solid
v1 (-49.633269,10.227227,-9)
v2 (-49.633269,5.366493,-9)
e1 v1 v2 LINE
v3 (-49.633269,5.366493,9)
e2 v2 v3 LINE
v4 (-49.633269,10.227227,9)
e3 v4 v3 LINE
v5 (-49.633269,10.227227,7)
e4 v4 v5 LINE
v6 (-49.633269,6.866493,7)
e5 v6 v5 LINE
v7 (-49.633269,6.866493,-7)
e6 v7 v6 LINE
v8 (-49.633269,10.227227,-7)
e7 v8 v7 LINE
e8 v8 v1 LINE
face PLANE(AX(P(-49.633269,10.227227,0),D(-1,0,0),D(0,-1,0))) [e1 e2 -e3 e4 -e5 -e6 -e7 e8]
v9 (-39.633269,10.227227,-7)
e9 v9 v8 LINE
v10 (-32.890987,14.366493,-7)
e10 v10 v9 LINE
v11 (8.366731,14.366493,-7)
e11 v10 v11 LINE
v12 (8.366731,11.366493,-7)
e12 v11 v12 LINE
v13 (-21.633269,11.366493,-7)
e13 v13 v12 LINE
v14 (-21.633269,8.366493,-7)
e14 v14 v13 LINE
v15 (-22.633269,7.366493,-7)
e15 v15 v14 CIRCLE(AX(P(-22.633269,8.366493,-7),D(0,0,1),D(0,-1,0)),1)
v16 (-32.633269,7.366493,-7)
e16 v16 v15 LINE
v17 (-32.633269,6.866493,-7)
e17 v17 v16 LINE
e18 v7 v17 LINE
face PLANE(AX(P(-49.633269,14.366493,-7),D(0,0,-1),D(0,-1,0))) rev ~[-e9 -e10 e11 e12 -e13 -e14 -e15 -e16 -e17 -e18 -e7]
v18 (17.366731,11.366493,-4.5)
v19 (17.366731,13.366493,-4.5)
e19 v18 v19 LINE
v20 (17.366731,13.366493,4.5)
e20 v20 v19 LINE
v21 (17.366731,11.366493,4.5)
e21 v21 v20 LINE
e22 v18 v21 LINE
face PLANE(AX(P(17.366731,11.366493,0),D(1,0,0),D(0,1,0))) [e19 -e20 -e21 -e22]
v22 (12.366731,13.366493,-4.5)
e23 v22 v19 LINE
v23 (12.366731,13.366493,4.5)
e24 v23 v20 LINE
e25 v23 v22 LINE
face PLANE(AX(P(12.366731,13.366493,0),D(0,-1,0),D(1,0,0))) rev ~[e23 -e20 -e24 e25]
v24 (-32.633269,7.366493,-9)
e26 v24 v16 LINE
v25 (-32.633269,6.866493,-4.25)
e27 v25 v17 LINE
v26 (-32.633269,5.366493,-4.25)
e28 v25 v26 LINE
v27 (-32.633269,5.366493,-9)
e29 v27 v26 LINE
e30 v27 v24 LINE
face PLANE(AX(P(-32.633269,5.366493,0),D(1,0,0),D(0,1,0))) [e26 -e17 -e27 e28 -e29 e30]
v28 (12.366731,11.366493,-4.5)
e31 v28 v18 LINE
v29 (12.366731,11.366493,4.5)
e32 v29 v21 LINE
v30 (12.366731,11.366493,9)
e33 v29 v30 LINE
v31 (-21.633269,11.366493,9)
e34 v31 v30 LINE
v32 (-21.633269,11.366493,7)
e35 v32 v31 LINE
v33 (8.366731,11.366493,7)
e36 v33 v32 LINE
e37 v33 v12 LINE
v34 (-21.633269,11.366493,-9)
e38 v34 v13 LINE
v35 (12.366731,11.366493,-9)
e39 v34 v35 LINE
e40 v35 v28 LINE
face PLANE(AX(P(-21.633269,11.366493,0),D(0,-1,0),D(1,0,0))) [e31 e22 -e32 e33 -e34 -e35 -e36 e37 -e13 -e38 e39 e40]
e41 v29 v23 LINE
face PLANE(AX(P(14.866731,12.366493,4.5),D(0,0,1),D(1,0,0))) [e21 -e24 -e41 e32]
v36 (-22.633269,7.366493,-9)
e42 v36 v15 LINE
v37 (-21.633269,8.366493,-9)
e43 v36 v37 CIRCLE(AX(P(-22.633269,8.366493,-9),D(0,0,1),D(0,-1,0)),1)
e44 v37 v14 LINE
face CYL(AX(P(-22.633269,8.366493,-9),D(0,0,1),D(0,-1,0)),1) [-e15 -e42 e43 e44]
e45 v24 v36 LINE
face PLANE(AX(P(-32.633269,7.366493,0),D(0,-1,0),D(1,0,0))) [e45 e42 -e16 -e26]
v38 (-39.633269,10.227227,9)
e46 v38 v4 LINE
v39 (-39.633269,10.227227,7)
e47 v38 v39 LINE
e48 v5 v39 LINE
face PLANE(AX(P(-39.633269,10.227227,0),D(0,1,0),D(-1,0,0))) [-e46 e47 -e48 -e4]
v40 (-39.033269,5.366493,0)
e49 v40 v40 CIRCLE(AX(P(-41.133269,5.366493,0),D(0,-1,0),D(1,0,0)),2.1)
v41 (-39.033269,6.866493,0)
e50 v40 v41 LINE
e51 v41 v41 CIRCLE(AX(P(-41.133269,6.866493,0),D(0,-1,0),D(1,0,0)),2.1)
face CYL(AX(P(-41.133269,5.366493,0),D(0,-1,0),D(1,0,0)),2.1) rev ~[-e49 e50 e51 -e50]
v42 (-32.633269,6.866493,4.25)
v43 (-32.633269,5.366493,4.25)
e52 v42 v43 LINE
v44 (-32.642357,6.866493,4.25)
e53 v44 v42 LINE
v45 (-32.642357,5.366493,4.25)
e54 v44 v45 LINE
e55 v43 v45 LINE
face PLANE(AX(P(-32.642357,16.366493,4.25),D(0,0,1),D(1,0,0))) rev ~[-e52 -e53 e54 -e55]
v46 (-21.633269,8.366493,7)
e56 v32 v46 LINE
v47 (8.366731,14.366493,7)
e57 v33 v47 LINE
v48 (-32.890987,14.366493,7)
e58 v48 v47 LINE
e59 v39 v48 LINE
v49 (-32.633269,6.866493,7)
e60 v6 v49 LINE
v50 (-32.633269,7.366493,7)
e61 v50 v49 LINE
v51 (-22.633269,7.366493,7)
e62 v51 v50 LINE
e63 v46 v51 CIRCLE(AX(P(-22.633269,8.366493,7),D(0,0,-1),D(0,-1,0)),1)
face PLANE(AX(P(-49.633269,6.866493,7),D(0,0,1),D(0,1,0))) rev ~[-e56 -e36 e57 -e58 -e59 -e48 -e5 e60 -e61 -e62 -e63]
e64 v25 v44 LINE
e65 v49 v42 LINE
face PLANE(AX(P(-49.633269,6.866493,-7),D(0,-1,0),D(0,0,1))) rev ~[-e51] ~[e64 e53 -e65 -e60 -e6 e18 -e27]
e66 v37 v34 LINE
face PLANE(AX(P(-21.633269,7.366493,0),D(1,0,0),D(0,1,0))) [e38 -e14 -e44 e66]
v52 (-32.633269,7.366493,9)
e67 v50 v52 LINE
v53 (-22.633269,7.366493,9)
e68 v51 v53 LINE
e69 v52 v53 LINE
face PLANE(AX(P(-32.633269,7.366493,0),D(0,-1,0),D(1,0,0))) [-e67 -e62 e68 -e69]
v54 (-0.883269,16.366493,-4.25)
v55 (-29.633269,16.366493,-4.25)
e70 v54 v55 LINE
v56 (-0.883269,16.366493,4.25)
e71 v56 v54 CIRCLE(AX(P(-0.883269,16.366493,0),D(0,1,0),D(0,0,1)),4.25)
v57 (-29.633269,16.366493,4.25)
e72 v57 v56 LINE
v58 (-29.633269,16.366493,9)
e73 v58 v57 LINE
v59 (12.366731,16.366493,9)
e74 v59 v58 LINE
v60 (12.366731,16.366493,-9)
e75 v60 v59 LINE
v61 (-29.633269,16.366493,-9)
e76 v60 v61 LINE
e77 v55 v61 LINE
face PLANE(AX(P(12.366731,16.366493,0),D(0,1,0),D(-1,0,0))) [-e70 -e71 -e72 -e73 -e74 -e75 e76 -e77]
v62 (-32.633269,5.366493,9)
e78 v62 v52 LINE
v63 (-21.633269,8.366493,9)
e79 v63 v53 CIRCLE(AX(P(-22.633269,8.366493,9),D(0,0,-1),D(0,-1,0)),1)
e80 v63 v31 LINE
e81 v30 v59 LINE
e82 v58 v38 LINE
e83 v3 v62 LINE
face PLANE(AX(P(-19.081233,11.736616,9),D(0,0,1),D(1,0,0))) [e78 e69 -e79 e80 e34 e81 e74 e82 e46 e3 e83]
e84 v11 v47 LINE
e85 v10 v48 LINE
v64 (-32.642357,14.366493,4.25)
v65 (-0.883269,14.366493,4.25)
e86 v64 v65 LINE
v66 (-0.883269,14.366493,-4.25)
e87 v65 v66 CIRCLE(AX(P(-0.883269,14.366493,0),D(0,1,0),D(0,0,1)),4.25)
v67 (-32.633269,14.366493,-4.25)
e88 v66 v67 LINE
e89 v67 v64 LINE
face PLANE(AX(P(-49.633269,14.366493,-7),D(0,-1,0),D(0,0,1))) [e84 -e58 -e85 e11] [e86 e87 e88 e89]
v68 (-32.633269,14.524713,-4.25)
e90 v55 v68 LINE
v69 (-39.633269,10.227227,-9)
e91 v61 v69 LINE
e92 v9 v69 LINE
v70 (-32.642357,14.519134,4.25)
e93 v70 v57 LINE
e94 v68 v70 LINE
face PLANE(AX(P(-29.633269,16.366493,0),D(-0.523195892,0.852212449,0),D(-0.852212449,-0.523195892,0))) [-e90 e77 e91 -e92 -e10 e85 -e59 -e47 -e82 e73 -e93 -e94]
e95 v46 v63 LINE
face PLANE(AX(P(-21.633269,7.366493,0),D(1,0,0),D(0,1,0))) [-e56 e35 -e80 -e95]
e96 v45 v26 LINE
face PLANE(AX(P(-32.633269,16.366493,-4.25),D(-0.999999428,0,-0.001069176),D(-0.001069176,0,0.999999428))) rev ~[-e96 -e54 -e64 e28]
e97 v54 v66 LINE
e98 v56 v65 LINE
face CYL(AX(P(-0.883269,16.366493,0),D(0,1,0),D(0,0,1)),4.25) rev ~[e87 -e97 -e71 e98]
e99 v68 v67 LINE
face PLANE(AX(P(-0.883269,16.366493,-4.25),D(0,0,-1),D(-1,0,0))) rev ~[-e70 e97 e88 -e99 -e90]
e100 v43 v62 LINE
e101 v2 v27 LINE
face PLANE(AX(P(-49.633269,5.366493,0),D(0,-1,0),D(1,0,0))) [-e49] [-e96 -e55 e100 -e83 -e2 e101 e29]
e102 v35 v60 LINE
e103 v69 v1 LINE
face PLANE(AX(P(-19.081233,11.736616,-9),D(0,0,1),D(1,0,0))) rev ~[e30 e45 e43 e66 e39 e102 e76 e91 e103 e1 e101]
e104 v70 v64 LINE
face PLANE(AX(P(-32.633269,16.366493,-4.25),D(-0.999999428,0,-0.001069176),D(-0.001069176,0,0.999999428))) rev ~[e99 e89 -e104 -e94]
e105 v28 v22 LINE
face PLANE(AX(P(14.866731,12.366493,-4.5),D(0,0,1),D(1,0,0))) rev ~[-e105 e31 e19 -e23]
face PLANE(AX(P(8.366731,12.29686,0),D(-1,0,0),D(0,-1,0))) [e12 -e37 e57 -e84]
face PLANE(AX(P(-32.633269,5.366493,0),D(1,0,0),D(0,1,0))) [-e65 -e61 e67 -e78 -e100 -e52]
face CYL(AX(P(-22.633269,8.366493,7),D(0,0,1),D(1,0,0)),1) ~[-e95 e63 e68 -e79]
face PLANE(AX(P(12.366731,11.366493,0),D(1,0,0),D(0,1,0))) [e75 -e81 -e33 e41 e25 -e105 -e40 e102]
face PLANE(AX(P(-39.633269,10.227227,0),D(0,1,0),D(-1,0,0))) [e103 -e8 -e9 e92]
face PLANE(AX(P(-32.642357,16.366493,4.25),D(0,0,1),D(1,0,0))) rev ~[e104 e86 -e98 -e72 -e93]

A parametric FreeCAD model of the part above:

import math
import FreeCAD as App
import Part
import Sketcher
from FreeCAD import Vector
Q = App.Units.Quantity


def edges_at(feature, points):
    """Names of the edges that pass closest to the given points."""
    edges = feature.Shape.Edges
    near = lambda p: min(range(len(edges)), key=lambda i: edges[i].distToShape(Part.Vertex(*p))[0])
    return sorted({f"Edge{near(p) + 1}" for p in points})


def add_polygon(sketch, points):
    """Adds a closed chain of lines whose ends are joined by coincident constraints."""
    first, n = sketch.GeometryCount, len(points)
    for a, b in zip(points, points[1:] + points[:1]):
        sketch.addGeometry(Part.LineSegment(App.Vector(*a, 0), App.Vector(*b, 0)), False)
    for i in range(n):
        sketch.addConstraint(Sketcher.Constraint("Coincident", first + i, 2, first + (i + 1) % n, 1))

doc = App.newDocument("Part")
body = doc.addObject("PartDesign::Body", "Body")

sketch1 = body.newObject("Sketcher::SketchObject", "Sketch")
sketch1.AttachmentSupport = (doc.getObject("XY_Plane"), [""])
sketch1.MapMode = "FlatFace"
add_polygon(sketch1, [(-49.633269, 10.227227), (-49.633269, 5.366493), (-32.633269, 5.366493), (-32.633269, 7.366493), (-21.633269, 7.366493), (-21.633269, 11.366493), (12.366731, 11.366493), (12.366731, 16.366493), (-29.633269, 16.366493), (-39.633269, 10.227227)])
sketch1.addConstraint([
    Sketcher.Constraint("Vertical", 0),
    Sketcher.Constraint("Horizontal", 1),
    Sketcher.Constraint("Vertical", 2),
    Sketcher.Constraint("Horizontal", 3),
    Sketcher.Constraint("Vertical", 4),
    Sketcher.Constraint("Horizontal", 5),
    Sketcher.Constraint("Vertical", 6),
    Sketcher.Constraint("Horizontal", 7),
    Sketcher.Constraint("Horizontal", 9),
    Sketcher.Constraint("DistanceX", 1, 1, 1, 2, Q("17 mm")),
    Sketcher.Constraint("DistanceX", 3, 1, 3, 2, Q("11 mm")),
    Sketcher.Constraint("DistanceX", 5, 1, 5, 2, Q("34 mm")),
    Sketcher.Constraint("DistanceX", 7, 2, 7, 1, Q("42 mm")),
    Sketcher.Constraint("DistanceX", 9, 2, 9, 1, Q("10 mm")),
    Sketcher.Constraint("DistanceY", 2, 1, 2, 2, Q("2 mm")),
    Sketcher.Constraint("DistanceY", 4, 1, 4, 2, Q("4 mm")),
    Sketcher.Constraint("DistanceY", 6, 1, 6, 2, Q("5 mm")),
    Sketcher.Constraint("DistanceY", 0, 2, 0, 1, Q("4.860734 mm")),
    Sketcher.Constraint("DistanceX", 0, 2, -1, 1, Q("49.633269 mm")),
    Sketcher.Constraint("DistanceY", -1, 1, 0, 2, Q("5.366493 mm")),
])
pad1 = body.newObject("PartDesign::Pad", "Pad")
pad1.Profile = sketch1
pad1.Length = 18
pad1.Midplane = True

sketch2 = body.newObject("Sketcher::SketchObject", "Sketch001")
sketch2.AttachmentSupport = (doc.getObject("XY_Plane"), [""])
sketch2.MapMode = "FlatFace"
add_polygon(sketch2, [(12.366731, 13.366493), (12.366731, 11.366493), (17.366731, 11.366493), (17.366731, 13.366493)])
sketch2.addConstraint([
    Sketcher.Constraint("Vertical", 0),
    Sketcher.Constraint("Horizontal", 1),
    Sketcher.Constraint("Vertical", 2),
    Sketcher.Constraint("Horizontal", 3),
    Sketcher.Constraint("DistanceX", 1, 1, 1, 2, Q("5 mm")),
    Sketcher.Constraint("DistanceY", 0, 2, 0, 1, Q("2 mm")),
    Sketcher.Constraint("DistanceX", -1, 1, 0, 2, Q("12.366731 mm")),
    Sketcher.Constraint("DistanceY", -1, 1, 0, 2, Q("11.366493 mm")),
])
pad2 = body.newObject("PartDesign::Pad", "Pad001")
pad2.Profile = sketch2
pad2.Length = 9
pad2.Midplane = True

sketch3 = body.newObject("Sketcher::SketchObject", "Sketch002")
sketch3.AttachmentSupport = (doc.getObject("XZ_Plane"), [""])
sketch3.MapMode = "FlatFace"
sketch3.AttachmentOffset = App.Placement(Vector(0, 0, -5.366493), App.Rotation())
sketch3.addGeometry(Part.Circle(Vector(-41.133269, 0, 0), Vector(0, 0, 1), 2.1), False)
sketch3.addConstraint([
    Sketcher.Constraint("PointOnObject", 0, 3, -1),
    Sketcher.Constraint("Diameter", 0, Q("4.2 mm")),
    Sketcher.Constraint("DistanceX", 0, 3, -1, 1, Q("41.133269 mm")),
])
pocket1 = body.newObject("PartDesign::Pocket", "Pocket")
pocket1.Profile = sketch3
pocket1.Type = "ThroughAll"

sketch4 = body.newObject("Sketcher::SketchObject", "Sketch003")
sketch4.AttachmentSupport = (doc.getObject("XZ_Plane"), [""])
sketch4.MapMode = "FlatFace"
sketch4.AttachmentOffset = App.Placement(Vector(0, 0, -16.366493), App.Rotation())
sketch4.addGeometry([
    Part.ArcOfCircle(Part.Circle(Vector(-0.883269, 0, 0), Vector(0, 0, 1), 4.25), math.radians(-90), math.radians(90)),
    Part.LineSegment(Vector(-0.883269, -4.25, 0), Vector(-32.633269, -4.25, 0)),
    Part.LineSegment(Vector(-32.633269, -4.25, 0), Vector(-32.642357, 4.25, 0)),
    Part.LineSegment(Vector(-32.642357, 4.25, 0), Vector(-0.883269, 4.25, 0)),
], False)
sketch4.addConstraint([
    Sketcher.Constraint("Tangent", 0, 1, 1, 1),
    Sketcher.Constraint("Coincident", 1, 2, 2, 1),
    Sketcher.Constraint("Coincident", 2, 2, 3, 1),
    Sketcher.Constraint("Tangent", 3, 2, 0, 2),
    Sketcher.Constraint("Horizontal", 1),
    Sketcher.Constraint("Horizontal", 3),
    Sketcher.Constraint("PointOnObject", 0, 3, -1),
    Sketcher.Constraint("Radius", 0, Q("4.25 mm")),
    Sketcher.Constraint("DistanceX", 1, 2, 1, 1, Q("31.75 mm")),
    Sketcher.Constraint("DistanceX", 3, 1, 3, 2, Q("31.759088 mm")),
    Sketcher.Constraint("DistanceX", 0, 3, -1, 1, Q("0.883269 mm")),
])
pocket2 = body.newObject("PartDesign::Pocket", "Pocket001")
pocket2.Profile = sketch4
pocket2.Type = "ThroughAll"
pocket2.Reversed = True

sketch5 = body.newObject("Sketcher::SketchObject", "Sketch004")
sketch5.AttachmentSupport = (doc.getObject("YZ_Plane"), [""])
sketch5.MapMode = "FlatFace"
sketch5.AttachmentOffset = App.Placement(Vector(0, 0, -49.633269), App.Rotation())
add_polygon(sketch5, [(14.366493, 7), (14.366493, -7), (6.866493, -7), (6.866493, 7)])
sketch5.addConstraint([
    Sketcher.Constraint("Vertical", 0),
    Sketcher.Constraint("Horizontal", 1),
    Sketcher.Constraint("Vertical", 2),
    Sketcher.Constraint("Horizontal", 3),
    Sketcher.Constraint("DistanceY", 0, 2, 0, 1, Q("14 mm")),
    Sketcher.Constraint("DistanceX", 1, 2, 1, 1, Q("7.5 mm")),
    Sketcher.Constraint("DistanceY", 0, 2, -1, 1, Q("7 mm")),
    Sketcher.Constraint("DistanceX", -1, 1, 0, 2, Q("14.366493 mm")),
])
pocket3 = body.newObject("PartDesign::Pocket", "Pocket002")
pocket3.Profile = sketch5
pocket3.Length = 58
pocket3.Reversed = True
doc.recompute()

fillet = body.newObject("PartDesign::Fillet", "Fillet")
fillet.Base = (pocket3, edges_at(pocket3, [(-21.633, 7.366, 8), (-21.633, 7.366, -8)]))
fillet.Radius = 1

doc.recompute()
